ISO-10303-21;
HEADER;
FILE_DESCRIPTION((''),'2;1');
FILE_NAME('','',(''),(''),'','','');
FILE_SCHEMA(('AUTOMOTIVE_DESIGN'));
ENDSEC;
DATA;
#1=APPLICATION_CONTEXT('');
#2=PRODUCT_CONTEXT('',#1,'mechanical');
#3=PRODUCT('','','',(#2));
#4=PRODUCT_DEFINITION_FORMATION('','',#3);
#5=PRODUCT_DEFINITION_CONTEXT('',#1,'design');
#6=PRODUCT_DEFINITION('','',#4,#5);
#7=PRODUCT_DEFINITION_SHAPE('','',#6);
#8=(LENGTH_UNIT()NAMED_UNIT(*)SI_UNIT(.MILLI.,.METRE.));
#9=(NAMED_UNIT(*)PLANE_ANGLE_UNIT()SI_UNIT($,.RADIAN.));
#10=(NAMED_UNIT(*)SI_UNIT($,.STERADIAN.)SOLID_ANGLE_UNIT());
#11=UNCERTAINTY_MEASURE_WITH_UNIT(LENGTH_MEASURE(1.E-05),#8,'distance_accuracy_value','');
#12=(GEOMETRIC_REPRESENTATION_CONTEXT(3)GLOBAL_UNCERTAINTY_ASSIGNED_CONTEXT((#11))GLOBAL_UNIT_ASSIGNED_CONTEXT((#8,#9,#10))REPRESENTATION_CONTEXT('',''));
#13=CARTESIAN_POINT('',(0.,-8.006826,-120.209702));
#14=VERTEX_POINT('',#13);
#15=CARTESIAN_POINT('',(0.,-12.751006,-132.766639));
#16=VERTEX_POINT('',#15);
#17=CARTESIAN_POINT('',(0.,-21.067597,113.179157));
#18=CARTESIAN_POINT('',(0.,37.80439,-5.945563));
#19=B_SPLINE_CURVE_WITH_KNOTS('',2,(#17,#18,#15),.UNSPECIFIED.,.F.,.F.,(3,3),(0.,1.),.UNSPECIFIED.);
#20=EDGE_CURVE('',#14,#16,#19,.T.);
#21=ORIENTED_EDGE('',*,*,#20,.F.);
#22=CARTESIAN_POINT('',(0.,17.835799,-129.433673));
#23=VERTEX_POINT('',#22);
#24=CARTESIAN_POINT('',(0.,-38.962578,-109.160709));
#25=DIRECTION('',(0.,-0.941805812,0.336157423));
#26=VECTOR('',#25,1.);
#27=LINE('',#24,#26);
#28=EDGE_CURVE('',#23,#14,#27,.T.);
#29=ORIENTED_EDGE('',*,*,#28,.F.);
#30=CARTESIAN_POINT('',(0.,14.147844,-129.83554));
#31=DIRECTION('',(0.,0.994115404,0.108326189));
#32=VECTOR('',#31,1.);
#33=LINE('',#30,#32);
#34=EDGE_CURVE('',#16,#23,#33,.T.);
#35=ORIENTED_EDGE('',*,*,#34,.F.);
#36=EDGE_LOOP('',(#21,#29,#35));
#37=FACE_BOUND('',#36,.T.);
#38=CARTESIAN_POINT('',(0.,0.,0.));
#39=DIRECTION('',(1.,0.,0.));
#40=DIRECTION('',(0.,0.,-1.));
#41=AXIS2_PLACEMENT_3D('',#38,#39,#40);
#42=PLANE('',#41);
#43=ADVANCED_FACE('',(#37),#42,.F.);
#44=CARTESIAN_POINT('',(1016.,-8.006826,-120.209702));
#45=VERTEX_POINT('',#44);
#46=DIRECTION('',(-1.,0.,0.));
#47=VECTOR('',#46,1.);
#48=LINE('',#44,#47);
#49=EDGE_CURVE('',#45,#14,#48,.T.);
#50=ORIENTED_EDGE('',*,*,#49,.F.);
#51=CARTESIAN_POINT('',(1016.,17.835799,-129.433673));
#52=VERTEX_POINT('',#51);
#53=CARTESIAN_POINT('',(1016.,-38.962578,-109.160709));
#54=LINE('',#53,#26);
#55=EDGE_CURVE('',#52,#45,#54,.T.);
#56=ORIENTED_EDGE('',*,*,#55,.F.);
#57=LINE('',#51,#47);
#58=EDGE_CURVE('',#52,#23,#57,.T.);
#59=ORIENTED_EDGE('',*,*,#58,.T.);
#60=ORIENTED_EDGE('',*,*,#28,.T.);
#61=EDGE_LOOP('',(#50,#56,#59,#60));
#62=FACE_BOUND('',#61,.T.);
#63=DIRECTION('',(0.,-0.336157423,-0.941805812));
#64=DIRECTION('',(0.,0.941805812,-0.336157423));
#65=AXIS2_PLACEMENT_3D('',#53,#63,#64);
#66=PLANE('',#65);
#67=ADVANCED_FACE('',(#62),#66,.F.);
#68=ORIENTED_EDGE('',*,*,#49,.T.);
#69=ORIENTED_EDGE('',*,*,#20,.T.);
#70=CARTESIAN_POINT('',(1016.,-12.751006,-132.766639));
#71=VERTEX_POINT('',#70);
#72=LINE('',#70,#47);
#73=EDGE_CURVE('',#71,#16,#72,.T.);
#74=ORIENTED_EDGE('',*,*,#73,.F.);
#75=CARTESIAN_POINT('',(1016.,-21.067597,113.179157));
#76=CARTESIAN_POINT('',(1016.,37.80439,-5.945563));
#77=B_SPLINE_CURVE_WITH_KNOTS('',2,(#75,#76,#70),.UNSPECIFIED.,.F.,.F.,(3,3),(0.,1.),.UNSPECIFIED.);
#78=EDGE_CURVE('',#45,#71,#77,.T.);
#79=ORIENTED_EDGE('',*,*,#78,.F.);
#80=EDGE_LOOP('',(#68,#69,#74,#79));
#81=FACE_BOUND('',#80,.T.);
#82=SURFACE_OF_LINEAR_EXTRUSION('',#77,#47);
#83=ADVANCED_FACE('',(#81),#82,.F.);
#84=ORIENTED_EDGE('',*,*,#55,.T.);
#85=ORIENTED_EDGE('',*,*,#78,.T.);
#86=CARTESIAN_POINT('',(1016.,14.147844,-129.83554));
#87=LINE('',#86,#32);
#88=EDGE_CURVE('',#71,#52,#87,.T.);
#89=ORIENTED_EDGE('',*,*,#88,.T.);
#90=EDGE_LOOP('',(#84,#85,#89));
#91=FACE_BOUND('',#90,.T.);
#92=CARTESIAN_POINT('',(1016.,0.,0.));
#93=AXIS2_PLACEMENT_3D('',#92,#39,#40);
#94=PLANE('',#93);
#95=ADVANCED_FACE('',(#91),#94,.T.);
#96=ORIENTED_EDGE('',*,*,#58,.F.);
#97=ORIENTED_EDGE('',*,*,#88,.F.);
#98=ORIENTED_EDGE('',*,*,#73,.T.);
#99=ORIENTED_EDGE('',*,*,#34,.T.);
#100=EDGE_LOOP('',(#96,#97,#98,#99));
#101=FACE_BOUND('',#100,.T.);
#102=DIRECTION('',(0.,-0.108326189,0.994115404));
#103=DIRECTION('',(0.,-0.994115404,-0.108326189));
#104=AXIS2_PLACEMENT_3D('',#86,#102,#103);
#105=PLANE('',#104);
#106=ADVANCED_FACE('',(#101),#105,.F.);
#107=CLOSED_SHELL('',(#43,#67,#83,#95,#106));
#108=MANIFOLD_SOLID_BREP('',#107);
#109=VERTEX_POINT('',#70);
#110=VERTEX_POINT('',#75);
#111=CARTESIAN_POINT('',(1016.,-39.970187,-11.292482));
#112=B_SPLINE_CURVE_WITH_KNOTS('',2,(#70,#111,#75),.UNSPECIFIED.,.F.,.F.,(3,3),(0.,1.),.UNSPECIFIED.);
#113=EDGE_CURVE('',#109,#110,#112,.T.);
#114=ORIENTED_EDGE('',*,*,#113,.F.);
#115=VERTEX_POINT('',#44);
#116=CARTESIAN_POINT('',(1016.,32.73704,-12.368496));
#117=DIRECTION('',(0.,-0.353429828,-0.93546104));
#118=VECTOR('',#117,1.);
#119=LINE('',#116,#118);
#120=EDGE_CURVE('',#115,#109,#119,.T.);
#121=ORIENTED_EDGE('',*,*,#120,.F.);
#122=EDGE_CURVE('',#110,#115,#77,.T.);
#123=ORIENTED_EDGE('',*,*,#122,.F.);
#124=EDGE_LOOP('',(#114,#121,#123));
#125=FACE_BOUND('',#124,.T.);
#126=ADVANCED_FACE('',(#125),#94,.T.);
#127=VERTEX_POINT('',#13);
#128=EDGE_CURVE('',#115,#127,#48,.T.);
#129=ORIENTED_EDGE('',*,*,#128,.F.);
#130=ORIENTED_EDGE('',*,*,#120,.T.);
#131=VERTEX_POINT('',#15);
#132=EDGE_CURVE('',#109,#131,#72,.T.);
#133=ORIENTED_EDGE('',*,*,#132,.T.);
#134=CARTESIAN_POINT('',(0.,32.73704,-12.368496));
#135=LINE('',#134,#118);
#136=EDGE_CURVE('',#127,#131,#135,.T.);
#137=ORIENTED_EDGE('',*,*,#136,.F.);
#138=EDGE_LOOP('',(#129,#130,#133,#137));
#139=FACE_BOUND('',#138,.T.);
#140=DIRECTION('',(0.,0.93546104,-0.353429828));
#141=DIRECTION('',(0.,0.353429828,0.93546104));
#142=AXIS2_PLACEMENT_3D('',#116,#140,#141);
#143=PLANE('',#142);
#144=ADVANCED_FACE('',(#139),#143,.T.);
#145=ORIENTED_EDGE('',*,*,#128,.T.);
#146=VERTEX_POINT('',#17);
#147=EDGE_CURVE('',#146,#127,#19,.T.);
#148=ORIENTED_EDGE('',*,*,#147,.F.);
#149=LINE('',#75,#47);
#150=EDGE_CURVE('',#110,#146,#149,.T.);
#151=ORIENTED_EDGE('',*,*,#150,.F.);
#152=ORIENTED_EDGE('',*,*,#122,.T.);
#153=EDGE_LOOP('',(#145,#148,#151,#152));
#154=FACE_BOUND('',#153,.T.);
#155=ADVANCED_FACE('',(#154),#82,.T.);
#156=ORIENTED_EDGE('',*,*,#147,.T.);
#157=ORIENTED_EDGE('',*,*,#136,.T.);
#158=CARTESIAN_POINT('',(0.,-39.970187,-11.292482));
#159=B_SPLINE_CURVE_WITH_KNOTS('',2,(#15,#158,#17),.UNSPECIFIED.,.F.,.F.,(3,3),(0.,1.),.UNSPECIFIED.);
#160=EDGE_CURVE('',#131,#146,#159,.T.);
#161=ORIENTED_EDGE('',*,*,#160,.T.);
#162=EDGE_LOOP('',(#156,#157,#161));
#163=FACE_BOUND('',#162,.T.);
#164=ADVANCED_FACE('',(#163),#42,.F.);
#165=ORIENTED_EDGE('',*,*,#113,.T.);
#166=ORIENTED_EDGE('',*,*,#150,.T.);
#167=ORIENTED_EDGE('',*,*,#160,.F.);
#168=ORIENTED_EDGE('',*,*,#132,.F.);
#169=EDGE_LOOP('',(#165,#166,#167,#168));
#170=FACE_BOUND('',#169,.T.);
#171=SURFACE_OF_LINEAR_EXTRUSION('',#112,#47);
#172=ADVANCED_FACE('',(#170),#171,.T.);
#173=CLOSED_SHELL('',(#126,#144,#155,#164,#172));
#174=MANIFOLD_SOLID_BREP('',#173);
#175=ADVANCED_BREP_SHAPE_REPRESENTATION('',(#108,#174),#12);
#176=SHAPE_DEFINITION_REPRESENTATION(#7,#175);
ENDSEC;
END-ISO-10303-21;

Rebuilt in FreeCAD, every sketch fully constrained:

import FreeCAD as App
import Part
import Sketcher
Q = App.Units.Quantity

doc = App.newDocument("Part")
body = doc.addObject("PartDesign::Body", "Body")

# Sketch on YZ plane
sketch1 = body.newObject("Sketcher::SketchObject", "Sketch")
sketch1.AttachmentSupport = (doc.getObject("YZ_Plane"), [""])
sketch1.MapMode = "FlatFace"
sketch1.addGeometry([
    Part.BSplineCurve([App.Vector(-8.006826, -120.209702, 0), App.Vector(-10.244414, -126.47871, 0), App.Vector(-12.751006, -132.766639, 0)], [3, 3], [0.950418901, 1], False, 2, [1, 1, 1], False),
    Part.LineSegment(App.Vector(-12.751006, -132.766639, 0), App.Vector(17.835799, -129.433673, 0)),
    Part.LineSegment(App.Vector(17.835799, -129.433673, 0), App.Vector(-8.006826, -120.209702, 0)),
], False)
sketch1.addConstraint([
    Sketcher.Constraint("Block", 0),
    Sketcher.Constraint("Coincident", 0, 2, 1, 1),
    Sketcher.Constraint("Coincident", 1, 2, 2, 1),
    Sketcher.Constraint("Coincident", 2, 2, 0, 1),
    Sketcher.Constraint("DistanceX", -1, 1, 1, 2, 17.835799),
    Sketcher.Constraint("Distance", 1, 30.767862),
])
pad1 = body.newObject("PartDesign::Pad", "Pad")
pad1.Profile = sketch1
pad1.Length = Q("40 in")
body2 = doc.addObject("PartDesign::Body", "Body001")

# Sketch on YZ plane
sketch2 = body2.newObject("Sketcher::SketchObject", "Sketch001")
sketch2.AttachmentSupport = (doc.getObject("YZ_Plane001"), [""])
sketch2.MapMode = "FlatFace"
sketch2.addGeometry([
    Part.BSplineCurve([App.Vector(-12.751006, -132.766639, 0), App.Vector(-39.970187, -11.292482, 0), App.Vector(-21.067597, 113.179157, 0)], [3, 3], [0, 1], False, 2, [1, 1, 1], False),
    Part.LineSegment(App.Vector(-12.751006, -132.766639, 0), App.Vector(-8.006826, -120.209702, 0)),
    Part.BSplineCurve([App.Vector(-21.067597, 113.179157, 0), App.Vector(34.885452, -0.039229, 0), App.Vector(-8.006826, -120.209702, 0)], [3, 3], [0, 0.950418901], False, 2, [1, 1, 1], False),
], False)
sketch2.addConstraint([
    Sketcher.Constraint("Block", 0),
    Sketcher.Constraint("Block", 2),
    Sketcher.Constraint("Coincident", 0, 1, 1, 1),
    Sketcher.Constraint("Coincident", 1, 2, 2, 2),
])
pad2 = body2.newObject("PartDesign::Pad", "Pad001")
pad2.Profile = sketch2
pad2.Length = Q("40 in")

doc.recompute()
